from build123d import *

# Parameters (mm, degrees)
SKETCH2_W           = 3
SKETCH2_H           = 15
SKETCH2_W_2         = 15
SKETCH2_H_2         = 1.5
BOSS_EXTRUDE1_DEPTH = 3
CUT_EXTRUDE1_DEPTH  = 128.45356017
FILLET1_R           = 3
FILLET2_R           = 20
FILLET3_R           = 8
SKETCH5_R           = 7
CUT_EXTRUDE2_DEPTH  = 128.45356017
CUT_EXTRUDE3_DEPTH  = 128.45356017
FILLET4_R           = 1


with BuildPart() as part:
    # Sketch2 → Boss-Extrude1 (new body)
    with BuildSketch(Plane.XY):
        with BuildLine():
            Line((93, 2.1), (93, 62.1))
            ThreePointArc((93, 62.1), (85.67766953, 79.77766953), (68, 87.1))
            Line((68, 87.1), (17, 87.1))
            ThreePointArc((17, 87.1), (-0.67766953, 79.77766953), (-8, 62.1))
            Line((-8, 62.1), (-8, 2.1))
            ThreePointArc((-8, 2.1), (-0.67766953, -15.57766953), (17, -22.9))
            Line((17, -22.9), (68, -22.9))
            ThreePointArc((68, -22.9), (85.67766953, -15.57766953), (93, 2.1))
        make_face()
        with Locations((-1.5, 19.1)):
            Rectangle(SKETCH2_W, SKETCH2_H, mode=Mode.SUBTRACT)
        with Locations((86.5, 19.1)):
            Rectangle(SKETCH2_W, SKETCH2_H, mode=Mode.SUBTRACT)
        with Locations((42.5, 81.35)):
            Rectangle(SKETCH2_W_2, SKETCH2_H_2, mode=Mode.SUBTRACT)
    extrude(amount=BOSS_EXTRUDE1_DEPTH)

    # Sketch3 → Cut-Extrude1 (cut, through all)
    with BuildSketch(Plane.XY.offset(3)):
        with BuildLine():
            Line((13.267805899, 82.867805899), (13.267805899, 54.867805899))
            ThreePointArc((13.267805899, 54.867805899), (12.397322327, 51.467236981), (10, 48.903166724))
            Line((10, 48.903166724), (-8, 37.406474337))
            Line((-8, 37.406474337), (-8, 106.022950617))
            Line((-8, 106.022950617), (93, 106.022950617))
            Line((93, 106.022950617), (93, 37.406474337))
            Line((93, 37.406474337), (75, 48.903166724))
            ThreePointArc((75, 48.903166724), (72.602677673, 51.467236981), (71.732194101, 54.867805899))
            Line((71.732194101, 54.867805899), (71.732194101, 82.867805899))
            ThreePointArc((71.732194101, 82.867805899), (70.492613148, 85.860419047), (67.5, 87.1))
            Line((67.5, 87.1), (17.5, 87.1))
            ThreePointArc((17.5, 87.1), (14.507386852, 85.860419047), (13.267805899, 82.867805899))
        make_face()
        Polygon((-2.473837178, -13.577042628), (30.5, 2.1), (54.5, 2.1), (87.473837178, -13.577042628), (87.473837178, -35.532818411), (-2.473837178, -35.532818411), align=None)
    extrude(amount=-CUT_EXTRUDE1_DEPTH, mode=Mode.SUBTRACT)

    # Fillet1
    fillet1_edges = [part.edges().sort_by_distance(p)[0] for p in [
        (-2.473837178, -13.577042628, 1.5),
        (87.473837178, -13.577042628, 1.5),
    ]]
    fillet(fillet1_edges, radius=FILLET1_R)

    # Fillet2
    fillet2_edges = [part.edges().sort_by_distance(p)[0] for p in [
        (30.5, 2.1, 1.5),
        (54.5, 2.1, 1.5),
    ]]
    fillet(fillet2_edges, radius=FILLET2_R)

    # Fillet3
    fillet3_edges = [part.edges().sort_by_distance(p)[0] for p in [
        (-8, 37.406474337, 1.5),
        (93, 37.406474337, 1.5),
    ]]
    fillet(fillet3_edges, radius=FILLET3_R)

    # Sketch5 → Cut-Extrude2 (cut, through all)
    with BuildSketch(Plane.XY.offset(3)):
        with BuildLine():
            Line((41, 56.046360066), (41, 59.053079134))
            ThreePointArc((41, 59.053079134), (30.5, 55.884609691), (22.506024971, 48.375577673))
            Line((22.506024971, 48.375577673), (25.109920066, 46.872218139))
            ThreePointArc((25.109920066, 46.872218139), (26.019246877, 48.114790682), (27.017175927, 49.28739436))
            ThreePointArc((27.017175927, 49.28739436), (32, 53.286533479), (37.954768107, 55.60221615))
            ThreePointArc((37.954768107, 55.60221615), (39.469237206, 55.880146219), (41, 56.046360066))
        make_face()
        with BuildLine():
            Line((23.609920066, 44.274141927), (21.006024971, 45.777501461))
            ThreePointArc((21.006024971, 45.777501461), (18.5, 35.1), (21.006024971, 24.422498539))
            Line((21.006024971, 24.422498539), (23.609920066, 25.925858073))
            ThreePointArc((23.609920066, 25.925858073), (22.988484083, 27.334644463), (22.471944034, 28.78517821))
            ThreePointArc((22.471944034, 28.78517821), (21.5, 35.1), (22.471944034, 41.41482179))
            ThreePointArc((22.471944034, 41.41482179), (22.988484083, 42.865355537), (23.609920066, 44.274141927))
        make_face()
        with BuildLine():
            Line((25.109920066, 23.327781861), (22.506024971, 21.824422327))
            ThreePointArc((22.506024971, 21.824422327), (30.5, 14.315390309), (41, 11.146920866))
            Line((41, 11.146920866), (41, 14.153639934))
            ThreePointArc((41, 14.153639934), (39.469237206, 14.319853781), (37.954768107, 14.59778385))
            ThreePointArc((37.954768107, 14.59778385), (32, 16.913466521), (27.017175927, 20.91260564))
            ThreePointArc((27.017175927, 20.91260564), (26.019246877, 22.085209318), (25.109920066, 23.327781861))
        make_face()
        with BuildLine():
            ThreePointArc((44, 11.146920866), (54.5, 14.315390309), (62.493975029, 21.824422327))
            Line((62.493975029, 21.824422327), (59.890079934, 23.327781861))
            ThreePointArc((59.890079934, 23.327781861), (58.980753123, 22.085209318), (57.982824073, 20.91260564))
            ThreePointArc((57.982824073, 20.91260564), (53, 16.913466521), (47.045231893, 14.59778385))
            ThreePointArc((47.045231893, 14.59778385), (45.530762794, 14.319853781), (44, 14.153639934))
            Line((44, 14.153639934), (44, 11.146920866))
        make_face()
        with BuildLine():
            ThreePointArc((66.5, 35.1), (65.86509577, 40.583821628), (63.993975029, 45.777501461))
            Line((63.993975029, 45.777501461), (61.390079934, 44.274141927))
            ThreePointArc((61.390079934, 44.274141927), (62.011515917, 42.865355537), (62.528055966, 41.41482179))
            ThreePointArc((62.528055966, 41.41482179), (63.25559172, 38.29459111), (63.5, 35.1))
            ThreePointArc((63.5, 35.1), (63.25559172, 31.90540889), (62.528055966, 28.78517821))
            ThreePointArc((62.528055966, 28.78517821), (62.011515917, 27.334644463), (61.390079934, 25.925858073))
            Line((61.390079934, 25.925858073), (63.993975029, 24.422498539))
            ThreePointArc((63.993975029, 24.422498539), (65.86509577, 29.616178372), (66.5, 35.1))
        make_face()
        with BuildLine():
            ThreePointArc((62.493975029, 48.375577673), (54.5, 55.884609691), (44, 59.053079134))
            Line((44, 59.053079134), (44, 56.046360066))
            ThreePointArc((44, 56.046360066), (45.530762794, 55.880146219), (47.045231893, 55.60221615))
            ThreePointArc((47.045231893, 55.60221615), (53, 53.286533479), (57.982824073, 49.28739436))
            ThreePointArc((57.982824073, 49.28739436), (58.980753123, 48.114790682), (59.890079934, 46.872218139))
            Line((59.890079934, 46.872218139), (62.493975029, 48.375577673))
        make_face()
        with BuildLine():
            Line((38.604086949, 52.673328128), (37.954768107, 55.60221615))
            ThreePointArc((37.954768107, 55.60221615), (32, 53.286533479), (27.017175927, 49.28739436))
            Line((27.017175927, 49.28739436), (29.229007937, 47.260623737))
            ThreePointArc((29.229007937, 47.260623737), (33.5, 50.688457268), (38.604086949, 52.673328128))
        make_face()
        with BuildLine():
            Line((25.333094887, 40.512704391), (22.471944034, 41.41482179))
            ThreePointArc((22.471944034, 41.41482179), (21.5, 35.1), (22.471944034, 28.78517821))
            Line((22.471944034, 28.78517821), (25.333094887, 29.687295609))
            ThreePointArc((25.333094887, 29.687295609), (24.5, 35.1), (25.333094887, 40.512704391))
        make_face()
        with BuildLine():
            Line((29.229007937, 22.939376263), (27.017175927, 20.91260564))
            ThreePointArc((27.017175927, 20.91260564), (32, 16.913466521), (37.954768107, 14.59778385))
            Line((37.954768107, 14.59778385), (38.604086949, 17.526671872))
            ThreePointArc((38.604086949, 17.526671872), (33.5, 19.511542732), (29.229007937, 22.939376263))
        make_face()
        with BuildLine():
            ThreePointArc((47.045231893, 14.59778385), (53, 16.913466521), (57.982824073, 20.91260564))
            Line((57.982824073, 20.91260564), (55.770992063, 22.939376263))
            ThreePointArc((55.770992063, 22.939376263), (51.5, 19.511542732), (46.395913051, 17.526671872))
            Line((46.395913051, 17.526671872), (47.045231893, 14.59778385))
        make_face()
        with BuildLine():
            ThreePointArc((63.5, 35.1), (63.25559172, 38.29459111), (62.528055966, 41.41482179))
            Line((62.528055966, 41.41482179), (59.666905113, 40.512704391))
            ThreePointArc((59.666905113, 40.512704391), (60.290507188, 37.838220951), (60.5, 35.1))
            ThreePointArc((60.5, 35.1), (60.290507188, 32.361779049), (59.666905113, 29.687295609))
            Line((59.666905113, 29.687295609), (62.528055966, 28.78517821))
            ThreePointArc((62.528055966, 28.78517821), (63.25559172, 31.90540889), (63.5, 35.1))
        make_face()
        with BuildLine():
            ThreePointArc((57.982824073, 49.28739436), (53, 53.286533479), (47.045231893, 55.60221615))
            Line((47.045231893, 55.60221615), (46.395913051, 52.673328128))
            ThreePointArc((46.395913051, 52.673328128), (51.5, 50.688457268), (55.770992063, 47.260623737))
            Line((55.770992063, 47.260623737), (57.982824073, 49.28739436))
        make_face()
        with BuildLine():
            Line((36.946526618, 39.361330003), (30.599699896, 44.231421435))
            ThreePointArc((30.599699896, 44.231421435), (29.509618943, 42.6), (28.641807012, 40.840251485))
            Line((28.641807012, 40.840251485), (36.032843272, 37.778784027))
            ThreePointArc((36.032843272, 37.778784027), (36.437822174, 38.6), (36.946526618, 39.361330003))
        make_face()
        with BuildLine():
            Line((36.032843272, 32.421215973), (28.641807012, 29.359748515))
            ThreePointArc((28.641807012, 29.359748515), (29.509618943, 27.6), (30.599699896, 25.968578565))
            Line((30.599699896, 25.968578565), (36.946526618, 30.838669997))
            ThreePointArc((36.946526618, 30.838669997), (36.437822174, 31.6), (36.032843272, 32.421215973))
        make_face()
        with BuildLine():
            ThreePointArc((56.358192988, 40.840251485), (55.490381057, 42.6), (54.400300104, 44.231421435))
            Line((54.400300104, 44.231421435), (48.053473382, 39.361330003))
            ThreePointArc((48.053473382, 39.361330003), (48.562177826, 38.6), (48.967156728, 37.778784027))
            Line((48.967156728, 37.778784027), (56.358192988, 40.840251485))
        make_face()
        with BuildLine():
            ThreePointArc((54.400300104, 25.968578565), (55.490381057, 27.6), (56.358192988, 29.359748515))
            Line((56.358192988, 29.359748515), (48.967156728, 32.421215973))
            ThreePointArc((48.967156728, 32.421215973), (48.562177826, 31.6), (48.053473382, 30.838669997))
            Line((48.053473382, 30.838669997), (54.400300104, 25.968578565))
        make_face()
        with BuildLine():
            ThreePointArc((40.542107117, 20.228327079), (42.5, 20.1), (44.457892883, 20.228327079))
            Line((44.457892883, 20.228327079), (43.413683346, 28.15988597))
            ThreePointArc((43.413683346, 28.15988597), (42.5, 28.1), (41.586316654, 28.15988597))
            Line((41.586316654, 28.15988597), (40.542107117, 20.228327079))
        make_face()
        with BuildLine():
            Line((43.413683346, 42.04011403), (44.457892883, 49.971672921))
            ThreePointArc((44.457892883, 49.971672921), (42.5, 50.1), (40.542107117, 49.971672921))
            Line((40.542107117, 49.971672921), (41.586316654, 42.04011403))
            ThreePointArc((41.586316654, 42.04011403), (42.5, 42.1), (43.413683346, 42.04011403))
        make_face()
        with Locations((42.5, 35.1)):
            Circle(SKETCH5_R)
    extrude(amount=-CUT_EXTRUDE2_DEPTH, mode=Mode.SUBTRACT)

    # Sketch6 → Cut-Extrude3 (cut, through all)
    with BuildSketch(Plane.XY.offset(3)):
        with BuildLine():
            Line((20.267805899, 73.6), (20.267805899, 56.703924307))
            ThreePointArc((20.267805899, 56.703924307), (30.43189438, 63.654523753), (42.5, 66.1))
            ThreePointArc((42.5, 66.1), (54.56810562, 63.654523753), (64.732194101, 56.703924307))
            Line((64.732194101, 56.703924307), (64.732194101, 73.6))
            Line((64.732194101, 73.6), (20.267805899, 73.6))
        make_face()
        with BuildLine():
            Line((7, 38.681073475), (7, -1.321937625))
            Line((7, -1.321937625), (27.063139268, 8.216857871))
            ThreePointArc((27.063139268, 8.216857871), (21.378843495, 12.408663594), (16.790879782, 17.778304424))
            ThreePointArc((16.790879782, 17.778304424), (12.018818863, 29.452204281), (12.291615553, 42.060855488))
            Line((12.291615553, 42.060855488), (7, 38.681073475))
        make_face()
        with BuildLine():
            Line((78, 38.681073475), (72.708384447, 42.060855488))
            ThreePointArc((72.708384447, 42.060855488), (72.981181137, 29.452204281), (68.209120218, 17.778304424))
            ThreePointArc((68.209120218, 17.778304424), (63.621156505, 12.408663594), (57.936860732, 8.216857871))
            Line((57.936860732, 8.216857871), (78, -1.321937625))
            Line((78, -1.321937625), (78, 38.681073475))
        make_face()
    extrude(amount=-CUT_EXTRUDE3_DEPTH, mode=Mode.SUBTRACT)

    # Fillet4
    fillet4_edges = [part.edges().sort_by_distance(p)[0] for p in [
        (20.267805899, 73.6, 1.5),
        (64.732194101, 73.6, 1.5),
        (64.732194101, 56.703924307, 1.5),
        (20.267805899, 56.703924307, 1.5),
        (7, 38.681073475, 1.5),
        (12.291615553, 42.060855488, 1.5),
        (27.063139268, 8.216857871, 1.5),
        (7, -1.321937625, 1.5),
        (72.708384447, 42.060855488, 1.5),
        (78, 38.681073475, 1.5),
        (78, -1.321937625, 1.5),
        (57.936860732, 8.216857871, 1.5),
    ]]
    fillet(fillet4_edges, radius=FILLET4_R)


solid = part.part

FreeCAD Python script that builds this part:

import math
import FreeCAD as App
import Part
import Sketcher
from FreeCAD import Vector
Q = App.Units.Quantity


def edges_at(feature, points):
    """Names of the edges that pass closest to the given points."""
    edges = feature.Shape.Edges
    near = lambda p: min(range(len(edges)), key=lambda i: edges[i].distToShape(Part.Vertex(*p))[0])
    return sorted({f"Edge{near(p) + 1}" for p in points})

doc = App.newDocument("Part")
params = doc.addObject("Spreadsheet::Sheet", "Params")
for row, (alias, value) in enumerate([
    ("sketch1_radius", "25 mm"),
    ("sketch1_width", "51 mm"),
    ("sketch1_width2", "3 mm"),
    ("sketch1_width3", "15 mm"),
    ("sketch1_height", "60 mm"),
    ("pad1_length", "3 mm"),
    ("sketch2_width", "50 mm"),
    ("sketch2_width2", "101 mm"),
    ("sketch2_width3", "24 mm"),
    ("sketch2_height", "28 mm"),
    ("fillet_radius", "3 mm"),
    ("fillet2_radius", "20 mm"),
    ("fillet3_radius", "8 mm"),
    ("sketch3_radius", "24 mm"),
    ("sketch3_radius2", "21 mm"),
    ("sketch3_radius3", "18 mm"),
    ("sketch3_radius4", "15 mm"),
    ("sketch3_radius5", "7 mm"),
    ("sketch4_radius", "31 mm"),
    ("fillet4_radius", "1 mm"),
], start=1):
    params.set(f"A{row}", alias)
    params.set(f"B{row}", "=" + value)
    params.setAlias(f"B{row}", alias)

body = doc.addObject("PartDesign::Body", "Body")

# Sketch on XY plane
sketch1 = body.newObject("Sketcher::SketchObject", "Sketch")
sketch1.AttachmentSupport = (doc.getObject("XY_Plane"), [""])
sketch1.MapMode = "FlatFace"
sketch1.addGeometry([
    Part.LineSegment(Vector(93, 2.1, 0), Vector(93, 62.1, 0)),  # 0
    Part.ArcOfCircle(Part.Circle(Vector(68, 62.1, 0), Vector(0, 0, 1), 25), math.radians(0), math.radians(90)),  # 1
    Part.LineSegment(Vector(68, 87.1, 0), Vector(17, 87.1, 0)),  # 2
    Part.ArcOfCircle(Part.Circle(Vector(17, 62.1, 0), Vector(0, 0, 1), 25), math.radians(90), math.radians(180)),  # 3
    Part.LineSegment(Vector(-8, 62.1, 0), Vector(-8, 2.1, 0)),  # 4
    Part.ArcOfCircle(Part.Circle(Vector(17, 2.1, 0), Vector(0, 0, 1), 25), math.radians(180), math.radians(270)),  # 5
    Part.LineSegment(Vector(17, -22.9, 0), Vector(68, -22.9, 0)),  # 6
    Part.ArcOfCircle(Part.Circle(Vector(68, 2.1, 0), Vector(0, 0, 1), 25), math.radians(-90), math.radians(0)),  # 7
    Part.LineSegment(Vector(0, 11.6, 0), Vector(-3, 11.6, 0)),  # 8
    Part.LineSegment(Vector(-3, 11.6, 0), Vector(-3, 26.6, 0)),  # 9
    Part.LineSegment(Vector(-3, 26.6, 0), Vector(0, 26.6, 0)),  # 10
    Part.LineSegment(Vector(0, 26.6, 0), Vector(0, 11.6, 0)),  # 11
    Part.LineSegment(Vector(88, 11.6, 0), Vector(85, 11.6, 0)),  # 12
    Part.LineSegment(Vector(85, 11.6, 0), Vector(85, 26.6, 0)),  # 13
    Part.LineSegment(Vector(85, 26.6, 0), Vector(88, 26.6, 0)),  # 14
    Part.LineSegment(Vector(88, 26.6, 0), Vector(88, 11.6, 0)),  # 15
    Part.LineSegment(Vector(50, 80.6, 0), Vector(35, 80.6, 0)),  # 16
    Part.LineSegment(Vector(35, 80.6, 0), Vector(35, 82.1, 0)),  # 17
    Part.LineSegment(Vector(35, 82.1, 0), Vector(50, 82.1, 0)),  # 18
    Part.LineSegment(Vector(50, 82.1, 0), Vector(50, 80.6, 0)),  # 19
], False)
sketch1.addConstraint([
    Sketcher.Constraint("Tangent", 0, 2, 1, 1),
    Sketcher.Constraint("Tangent", 1, 2, 2, 1),
    Sketcher.Constraint("Tangent", 2, 2, 3, 1),
    Sketcher.Constraint("Tangent", 3, 2, 4, 1),
    Sketcher.Constraint("Tangent", 4, 2, 5, 1),
    Sketcher.Constraint("Tangent", 5, 2, 6, 1),
    Sketcher.Constraint("Tangent", 6, 2, 7, 1),
    Sketcher.Constraint("Tangent", 7, 2, 0, 1),
    Sketcher.Constraint("Coincident", 8, 2, 9, 1),
    Sketcher.Constraint("Coincident", 9, 2, 10, 1),
    Sketcher.Constraint("Coincident", 10, 2, 11, 1),
    Sketcher.Constraint("Coincident", 11, 2, 8, 1),
    Sketcher.Constraint("Coincident", 12, 2, 13, 1),
    Sketcher.Constraint("Coincident", 13, 2, 14, 1),
    Sketcher.Constraint("Coincident", 14, 2, 15, 1),
    Sketcher.Constraint("Coincident", 15, 2, 12, 1),
    Sketcher.Constraint("Coincident", 16, 2, 17, 1),
    Sketcher.Constraint("Coincident", 17, 2, 18, 1),
    Sketcher.Constraint("Coincident", 18, 2, 19, 1),
    Sketcher.Constraint("Coincident", 19, 2, 16, 1),
    Sketcher.Constraint("Vertical", 0),
    Sketcher.Constraint("Horizontal", 2),
    Sketcher.Constraint("Vertical", 4),
    Sketcher.Constraint("Horizontal", 6),
    Sketcher.Constraint("Horizontal", 8),
    Sketcher.Constraint("Vertical", 9),
    Sketcher.Constraint("Horizontal", 10),
    Sketcher.Constraint("Vertical", 11),
    Sketcher.Constraint("Horizontal", 12),
    Sketcher.Constraint("Vertical", 13),
    Sketcher.Constraint("Horizontal", 14),
    Sketcher.Constraint("Vertical", 15),
    Sketcher.Constraint("Horizontal", 16),
    Sketcher.Constraint("Vertical", 17),
    Sketcher.Constraint("Horizontal", 18),
    Sketcher.Constraint("Vertical", 19),
    Sketcher.Constraint("Equal", 1, 3),
    Sketcher.Constraint("Equal", 3, 5),
    Sketcher.Constraint("Equal", 5, 7),
    Sketcher.Constraint("PointOnObject", 10, 2, -2),
    Sketcher.Constraint("Horizontal", 11, 2, 12, 2),
    Sketcher.Constraint("Horizontal", 10, 2, 13, 2),
    Sketcher.Constraint("Equal", 10, 12),
    Sketcher.Constraint("Equal", 18, 9),
    Sketcher.Constraint("Radius", 1, 25.0),
    Sketcher.Constraint("DistanceX", 2, 2, 2, 1, 51.0),
    Sketcher.Constraint("DistanceX", 8, 2, 8, 1, 3.0),
    Sketcher.Constraint("DistanceX", 16, 2, 16, 1, 15.0),
    Sketcher.Constraint("DistanceY", 0, 1, 0, 2, 60.0),
    Sketcher.Constraint("DistanceY", 17, 1, 17, 2, 1.5),
    Sketcher.Constraint("DistanceX", -1, 1, 1, 3, 68.0),
    Sketcher.Constraint("DistanceX", -1, 1, 12, 2, 85.0),
    Sketcher.Constraint("DistanceX", -1, 1, 16, 2, 35.0),
    Sketcher.Constraint("DistanceY", 17, 2, 2, 2, 5.0),
    Sketcher.Constraint("DistanceY", -1, 1, 1, 3, 62.1),
    Sketcher.Constraint("DistanceY", -1, 1, 8, 2, 11.6),
])
sketch1.setExpression("Constraints[44]", "Params.sketch1_radius")
sketch1.setExpression("Constraints[45]", "Params.sketch1_width")
sketch1.setExpression("Constraints[46]", "Params.sketch1_width2")
sketch1.setExpression("Constraints[47]", "Params.sketch1_width3")
sketch1.setExpression("Constraints[48]", "Params.sketch1_height")
pad1 = body.newObject("PartDesign::Pad", "Pad")
pad1.Profile = sketch1
pad1.setExpression("Length", "Params.pad1_length")

# Sketch on XY plane
sketch2 = body.newObject("Sketcher::SketchObject", "Sketch001")
sketch2.AttachmentSupport = (doc.getObject("XY_Plane"), [""])
sketch2.MapMode = "FlatFace"
sketch2.AttachmentOffset = App.Placement(Vector(0, 0, 3), App.Rotation())
sketch2.addGeometry([
    Part.LineSegment(Vector(13.267806, 54.867806, 0), Vector(13.267806, 82.867806, 0)),  # 0
    Part.ArcOfCircle(Part.Circle(Vector(17.5, 82.867806, 0), Vector(0, 0, 1), 4.232194), math.radians(90), math.radians(180)),  # 1
    Part.LineSegment(Vector(17.5, 87.1, 0), Vector(67.5, 87.1, 0)),  # 2
    Part.ArcOfCircle(Part.Circle(Vector(67.5, 82.867806, 0), Vector(0, 0, 1), 4.232194), math.radians(0), math.radians(90)),  # 3
    Part.LineSegment(Vector(71.732194, 82.867806, 0), Vector(71.732194, 54.867806, 0)),  # 4
    Part.ArcOfCircle(Part.Circle(Vector(78.809646, 54.867806, 0), Vector(0, 0, 1), 7.077452), math.radians(-180), math.radians(-122.56658)),  # 5
    Part.LineSegment(Vector(75, 48.903167, 0), Vector(93, 37.406474, 0)),  # 6
    Part.LineSegment(Vector(93, 37.406474, 0), Vector(93, 106.022951, 0)),  # 7
    Part.LineSegment(Vector(93, 106.022951, 0), Vector(-8, 106.022951, 0)),  # 8
    Part.LineSegment(Vector(-8, 106.022951, 0), Vector(-8, 37.406474, 0)),  # 9
    Part.LineSegment(Vector(-8, 37.406474, 0), Vector(10, 48.903167, 0)),  # 10
    Part.ArcOfCircle(Part.Circle(Vector(6.190354, 54.867806, 0), Vector(0, 0, 1), 7.077452), math.radians(-57.43342), math.radians(0)),  # 11
    Part.LineSegment(Vector(30.5, 2.1, 0), Vector(-2.473837, -13.577043, 0)),  # 12
    Part.LineSegment(Vector(-2.473837, -13.577043, 0), Vector(-2.473837, -35.532818, 0)),  # 13
    Part.LineSegment(Vector(-2.473837, -35.532818, 0), Vector(87.473837, -35.532818, 0)),  # 14
    Part.LineSegment(Vector(87.473837, -35.532818, 0), Vector(87.473837, -13.577043, 0)),  # 15
    Part.LineSegment(Vector(87.473837, -13.577043, 0), Vector(54.5, 2.1, 0)),  # 16
    Part.LineSegment(Vector(54.5, 2.1, 0), Vector(30.5, 2.1, 0)),  # 17
], False)
sketch2.addConstraint([
    Sketcher.Constraint("Tangent", 0, 2, 1, 2),
    Sketcher.Constraint("Tangent", 1, 1, 2, 1),
    Sketcher.Constraint("Tangent", 2, 2, 3, 2),
    Sketcher.Constraint("Tangent", 3, 1, 4, 1),
    Sketcher.Constraint("Tangent", 4, 2, 5, 1),
    Sketcher.Constraint("Tangent", 5, 2, 6, 1),
    Sketcher.Constraint("Coincident", 6, 2, 7, 1),
    Sketcher.Constraint("Coincident", 7, 2, 8, 1),
    Sketcher.Constraint("Coincident", 8, 2, 9, 1),
    Sketcher.Constraint("Coincident", 9, 2, 10, 1),
    Sketcher.Constraint("Tangent", 10, 2, 11, 1),
    Sketcher.Constraint("Tangent", 11, 2, 0, 1),
    Sketcher.Constraint("Coincident", 12, 2, 13, 1),
    Sketcher.Constraint("Coincident", 13, 2, 14, 1),
    Sketcher.Constraint("Coincident", 14, 2, 15, 1),
    Sketcher.Constraint("Coincident", 15, 2, 16, 1),
    Sketcher.Constraint("Coincident", 16, 2, 17, 1),
    Sketcher.Constraint("Coincident", 17, 2, 12, 1),
    Sketcher.Constraint("Vertical", 0),
    Sketcher.Constraint("Horizontal", 2),
    Sketcher.Constraint("Vertical", 4),
    Sketcher.Constraint("Vertical", 7),
    Sketcher.Constraint("Horizontal", 8),
    Sketcher.Constraint("Vertical", 9),
    Sketcher.Constraint("Vertical", 13),
    Sketcher.Constraint("Horizontal", 14),
    Sketcher.Constraint("Vertical", 15),
    Sketcher.Constraint("Horizontal", 17),
    Sketcher.Constraint("Equal", 1, 3),
    Sketcher.Constraint("Equal", 5, 11),
    Sketcher.Constraint("Horizontal", 5, 3, 11, 3),
    Sketcher.Constraint("Horizontal", 6, 2, 9, 2),
    Sketcher.Constraint("Horizontal", 5, 2, 10, 2),
    Sketcher.Constraint("Horizontal", 12, 2, 15, 2),
    Sketcher.Constraint("Equal", 12, 16),
    Sketcher.Constraint("DistanceX", 2, 1, 2, 2, 50.0),
    Sketcher.Constraint("DistanceX", 8, 2, 8, 1, 101.0),
    Sketcher.Constraint("DistanceX", 17, 2, 17, 1, 24.0),
    Sketcher.Constraint("DistanceY", 0, 1, 0, 2, 28.0),
    Sketcher.Constraint("DistanceX", -1, 1, 5, 2, 75.0),
    Sketcher.Constraint("DistanceX", -1, 1, 6, 2, 93.0),
    Sketcher.Constraint("DistanceY", -1, 1, 1, 1, 87.1),
    Sketcher.Constraint("DistanceX", -1, 1, 16, 2, 54.5),
    Sketcher.Constraint("DistanceY", -1, 1, 16, 2, 2.1),
    Sketcher.Constraint("Radius", 5, 7.077452),
    Sketcher.Constraint("Radius", 1, 4.232194),
    Sketcher.Constraint("Distance", 12, 36.51087),
    Sketcher.Constraint("DistanceX", 14, 1, 14, 2, 89.947674),
    Sketcher.Constraint("DistanceY", 7, 1, 7, 2, 68.616476),
    Sketcher.Constraint("DistanceY", 13, 2, 13, 1, 21.955776),
])
sketch2.setExpression("Constraints[35]", "Params.sketch2_width")
sketch2.setExpression("Constraints[36]", "Params.sketch2_width2")
sketch2.setExpression("Constraints[37]", "Params.sketch2_width3")
sketch2.setExpression("Constraints[38]", "Params.sketch2_height")
pocket1 = body.newObject("PartDesign::Pocket", "Pocket")
pocket1.Profile = sketch2
pocket1.Type = "ThroughAll"
doc.recompute()

fillet = body.newObject("PartDesign::Fillet", "Fillet")
fillet.Base = (pocket1, edges_at(pocket1, [(-2.474, -13.577, 1.5), (87.474, -13.577, 1.5)]))
fillet.setExpression("Radius", "Params.fillet_radius")
doc.recompute()

fillet2 = body.newObject("PartDesign::Fillet", "Fillet001")
fillet2.Base = (fillet, edges_at(fillet, [(30.5, 2.1, 1.5), (54.5, 2.1, 1.5)]))
fillet2.setExpression("Radius", "Params.fillet2_radius")
doc.recompute()

fillet3 = body.newObject("PartDesign::Fillet", "Fillet002")
fillet3.Base = (fillet2, edges_at(fillet2, [(-8, 37.406, 1.5), (93, 37.406, 1.5)]))
fillet3.setExpression("Radius", "Params.fillet3_radius")

# Sketch on XY plane
sketch3 = body.newObject("Sketcher::SketchObject", "Sketch002")
sketch3.AttachmentSupport = (doc.getObject("XY_Plane"), [""])
sketch3.MapMode = "FlatFace"
sketch3.AttachmentOffset = App.Placement(Vector(0, 0, 3), App.Rotation())
sketch3.addGeometry([
    Part.LineSegment(Vector(41, 56.04636, 0), Vector(41, 59.053079, 0)),  # 0
    Part.ArcOfCircle(Part.Circle(Vector(42.5, 35.1, 0), Vector(0, 0, 1), 24), math.radians(93.583322), math.radians(146.416678)),  # 1
    Part.LineSegment(Vector(22.506025, 48.375578, 0), Vector(25.10992, 46.872218, 0)),  # 2
    Part.ArcOfCircle(Part.Circle(Vector(42.5, 35.1, 0), Vector(0, 0, 1), 21), math.radians(137.5), math.radians(145.903956)),  # 3
    Part.LineSegment(Vector(27.017176, 49.287394, 0), Vector(29.229008, 47.260624, 0)),  # 4
    Part.ArcOfCircle(Part.Circle(Vector(42.5, 35.1, 0), Vector(0, 0, 1), 18), math.radians(102.5), math.radians(137.5)),  # 5
    Part.LineSegment(Vector(38.604087, 52.673328, 0), Vector(37.954768, 55.602216, 0)),  # 6
    Part.ArcOfCircle(Part.Circle(Vector(42.5, 35.1, 0), Vector(0, 0, 1), 21), math.radians(94.096044), math.radians(102.5)),  # 7
    Part.LineSegment(Vector(23.60992, 44.274142, 0), Vector(21.006025, 45.777501, 0)),  # 8
    Part.ArcOfCircle(Part.Circle(Vector(42.5, 35.1, 0), Vector(0, 0, 1), 24), math.radians(153.583322), math.radians(206.416678)),  # 9
    Part.LineSegment(Vector(21.006025, 24.422499, 0), Vector(23.60992, 25.925858, 0)),  # 10
    Part.ArcOfCircle(Part.Circle(Vector(42.5, 35.1, 0), Vector(0, 0, 1), 21), math.radians(-162.5), math.radians(-154.096044)),  # 11
    Part.LineSegment(Vector(22.471944, 28.785178, 0), Vector(25.333095, 29.687296, 0)),  # 12
    Part.ArcOfCircle(Part.Circle(Vector(42.5, 35.1, 0), Vector(0, 0, 1), 18), math.radians(162.5), math.radians(197.5)),  # 13
    Part.LineSegment(Vector(25.333095, 40.512704, 0), Vector(22.471944, 41.414822, 0)),  # 14
    Part.ArcOfCircle(Part.Circle(Vector(42.5, 35.1, 0), Vector(0, 0, 1), 21), math.radians(154.096044), math.radians(162.5)),  # 15
    Part.LineSegment(Vector(25.10992, 23.327782, 0), Vector(22.506025, 21.824422, 0)),  # 16
    Part.ArcOfCircle(Part.Circle(Vector(42.5, 35.1, 0), Vector(0, 0, 1), 24), math.radians(-146.416678), math.radians(-93.583322)),  # 17
    Part.LineSegment(Vector(41, 11.146921, 0), Vector(41, 14.15364, 0)),  # 18
    Part.ArcOfCircle(Part.Circle(Vector(42.5, 35.1, 0), Vector(0, 0, 1), 21), math.radians(-102.5), math.radians(-94.096044)),  # 19
    Part.LineSegment(Vector(37.954768, 14.597784, 0), Vector(38.604087, 17.526672, 0)),  # 20
    Part.ArcOfCircle(Part.Circle(Vector(42.5, 35.1, 0), Vector(0, 0, 1), 18), math.radians(-137.5), math.radians(-102.5)),  # 21
    Part.LineSegment(Vector(29.229008, 22.939376, 0), Vector(27.017176, 20.912606, 0)),  # 22
    Part.ArcOfCircle(Part.Circle(Vector(42.5, 35.1, 0), Vector(0, 0, 1), 21), math.radians(-145.903956), math.radians(-137.5)),  # 23
    Part.ArcOfCircle(Part.Circle(Vector(42.5, 35.1, 0), Vector(0, 0, 1), 24), math.radians(-86.416678), math.radians(-33.583322)),  # 24
    Part.LineSegment(Vector(62.493975, 21.824422, 0), Vector(59.89008, 23.327782, 0)),  # 25
    Part.ArcOfCircle(Part.Circle(Vector(42.5, 35.1, 0), Vector(0, 0, 1), 21), math.radians(-42.5), math.radians(-34.096044)),  # 26
    Part.LineSegment(Vector(57.982824, 20.912606, 0), Vector(55.770992, 22.939376, 0)),  # 27
    Part.ArcOfCircle(Part.Circle(Vector(42.5, 35.1, 0), Vector(0, 0, 1), 18), math.radians(-77.5), math.radians(-42.5)),  # 28
    Part.LineSegment(Vector(46.395913, 17.526672, 0), Vector(47.045232, 14.597784, 0)),  # 29
    Part.ArcOfCircle(Part.Circle(Vector(42.5, 35.1, 0), Vector(0, 0, 1), 21), math.radians(-85.903956), math.radians(-77.5)),  # 30
    Part.LineSegment(Vector(44, 14.15364, 0), Vector(44, 11.146921, 0)),  # 31
    Part.ArcOfCircle(Part.Circle(Vector(42.5, 35.1, 0), Vector(0, 0, 1), 24), math.radians(0), math.radians(26.416678)),  # 32
    Part.LineSegment(Vector(63.993975, 45.777501, 0), Vector(61.39008, 44.274142, 0)),  # 33
    Part.ArcOfCircle(Part.Circle(Vector(42.5, 35.1, 0), Vector(0, 0, 1), 21), math.radians(17.5), math.radians(25.903956)),  # 34
    Part.LineSegment(Vector(62.528056, 41.414822, 0), Vector(59.666905, 40.512704, 0)),  # 35
    Part.ArcOfCircle(Part.Circle(Vector(42.5, 35.1, 0), Vector(0, 0, 1), 18), math.radians(0), math.radians(17.5)),  # 36
    Part.ArcOfCircle(Part.Circle(Vector(42.5, 35.1, 0), Vector(0, 0, 1), 18), math.radians(-17.5), math.radians(0)),  # 37
    Part.LineSegment(Vector(59.666905, 29.687296, 0), Vector(62.528056, 28.785178, 0)),  # 38
    Part.ArcOfCircle(Part.Circle(Vector(42.5, 35.1, 0), Vector(0, 0, 1), 21), math.radians(-25.903956), math.radians(-17.5)),  # 39
    Part.LineSegment(Vector(61.39008, 25.925858, 0), Vector(63.993975, 24.422499, 0)),  # 40
    Part.ArcOfCircle(Part.Circle(Vector(42.5, 35.1, 0), Vector(0, 0, 1), 24), math.radians(-26.416678), math.radians(0)),  # 41
    Part.ArcOfCircle(Part.Circle(Vector(42.5, 35.1, 0), Vector(0, 0, 1), 24), math.radians(33.583322), math.radians(86.416678)),  # 42
    Part.LineSegment(Vector(44, 59.053079, 0), Vector(44, 56.04636, 0)),  # 43
    Part.ArcOfCircle(Part.Circle(Vector(42.5, 35.1, 0), Vector(0, 0, 1), 21), math.radians(77.5), math.radians(85.903956)),  # 44
    Part.LineSegment(Vector(47.045232, 55.602216, 0), Vector(46.395913, 52.673328, 0)),  # 45
    Part.ArcOfCircle(Part.Circle(Vector(42.5, 35.1, 0), Vector(0, 0, 1), 18), math.radians(42.5), math.radians(77.5)),  # 46
    Part.LineSegment(Vector(55.770992, 47.260624, 0), Vector(57.982824, 49.287394, 0)),  # 47
    Part.ArcOfCircle(Part.Circle(Vector(42.5, 35.1, 0), Vector(0, 0, 1), 21), math.radians(34.096044), math.radians(42.5)),  # 48
    Part.LineSegment(Vector(59.89008, 46.872218, 0), Vector(62.493975, 48.375578, 0)),  # 49
    Part.LineSegment(Vector(36.946527, 39.36133, 0), Vector(30.5997, 44.231421, 0)),  # 50
    Part.ArcOfCircle(Part.Circle(Vector(42.5, 35.1, 0), Vector(0, 0, 1), 15), math.radians(142.5), math.radians(157.5)),  # 51
    Part.LineSegment(Vector(28.641807, 40.840251, 0), Vector(36.032843, 37.778784, 0)),  # 52
    Part.ArcOfCircle(Part.Circle(Vector(42.5, 35.1, 0), Vector(0, 0, 1), 7), math.radians(157.5), math.radians(202.5)),  # 53
    Part.LineSegment(Vector(36.032843, 32.421216, 0), Vector(28.641807, 29.359749, 0)),  # 54
    Part.ArcOfCircle(Part.Circle(Vector(42.5, 35.1, 0), Vector(0, 0, 1), 15), math.radians(-157.5), math.radians(-142.5)),  # 55
    Part.LineSegment(Vector(30.5997, 25.968579, 0), Vector(36.946527, 30.83867, 0)),  # 56
    Part.ArcOfCircle(Part.Circle(Vector(42.5, 35.1, 0), Vector(0, 0, 1), 7), math.radians(-142.5), math.radians(-97.5)),  # 57
    Part.LineSegment(Vector(41.586317, 28.159886, 0), Vector(40.542107, 20.228327, 0)),  # 58
    Part.ArcOfCircle(Part.Circle(Vector(42.5, 35.1, 0), Vector(0, 0, 1), 15), math.radians(-97.5), math.radians(-82.5)),  # 59
    Part.LineSegment(Vector(44.457893, 20.228327, 0), Vector(43.413683, 28.159886, 0)),  # 60
    Part.ArcOfCircle(Part.Circle(Vector(42.5, 35.1, 0), Vector(0, 0, 1), 7), math.radians(-82.5), math.radians(-37.5)),  # 61
    Part.LineSegment(Vector(48.053473, 30.83867, 0), Vector(54.4003, 25.968579, 0)),  # 62
    Part.ArcOfCircle(Part.Circle(Vector(42.5, 35.1, 0), Vector(0, 0, 1), 15), math.radians(-37.5), math.radians(-22.5)),  # 63
    Part.LineSegment(Vector(56.358193, 29.359749, 0), Vector(48.967157, 32.421216, 0)),  # 64
    Part.ArcOfCircle(Part.Circle(Vector(42.5, 35.1, 0), Vector(0, 0, 1), 7), math.radians(-22.5), math.radians(22.5)),  # 65
    Part.LineSegment(Vector(48.967157, 37.778784, 0), Vector(56.358193, 40.840251, 0)),  # 66
    Part.ArcOfCircle(Part.Circle(Vector(42.5, 35.1, 0), Vector(0, 0, 1), 15), math.radians(22.5), math.radians(37.5)),  # 67
    Part.LineSegment(Vector(54.4003, 44.231421, 0), Vector(48.053473, 39.36133, 0)),  # 68
    Part.ArcOfCircle(Part.Circle(Vector(42.5, 35.1, 0), Vector(0, 0, 1), 7), math.radians(37.5), math.radians(82.5)),  # 69
    Part.LineSegment(Vector(43.413683, 42.040114, 0), Vector(44.457893, 49.971673, 0)),  # 70
    Part.ArcOfCircle(Part.Circle(Vector(42.5, 35.1, 0), Vector(0, 0, 1), 15), math.radians(82.5), math.radians(97.5)),  # 71
    Part.LineSegment(Vector(40.542107, 49.971673, 0), Vector(41.586317, 42.040114, 0)),  # 72
    Part.ArcOfCircle(Part.Circle(Vector(42.5, 35.1, 0), Vector(0, 0, 1), 7), math.radians(97.5), math.radians(142.5)),  # 73
], False)
sketch3.addConstraint([
    Sketcher.Constraint("Coincident", 0, 2, 1, 1),
    Sketcher.Constraint("Coincident", 1, 2, 2, 1),
    Sketcher.Constraint("Coincident", 2, 2, 3, 2),
    Sketcher.Constraint("Coincident", 3, 1, 4, 1),
    Sketcher.Constraint("Coincident", 4, 2, 5, 2),
    Sketcher.Constraint("Coincident", 5, 1, 6, 1),
    Sketcher.Constraint("Coincident", 6, 2, 7, 2),
    Sketcher.Constraint("Coincident", 7, 1, 0, 1),
    Sketcher.Constraint("Coincident", 8, 2, 9, 1),
    Sketcher.Constraint("Coincident", 9, 2, 10, 1),
    Sketcher.Constraint("Coincident", 10, 2, 11, 2),
    Sketcher.Constraint("Coincident", 11, 1, 12, 1),
    Sketcher.Constraint("Coincident", 12, 2, 13, 2),
    Sketcher.Constraint("Coincident", 13, 1, 14, 1),
    Sketcher.Constraint("Coincident", 14, 2, 15, 2),
    Sketcher.Constraint("Coincident", 15, 1, 8, 1),
    Sketcher.Constraint("Coincident", 16, 2, 17, 1),
    Sketcher.Constraint("Coincident", 17, 2, 18, 1),
    Sketcher.Constraint("Coincident", 18, 2, 19, 2),
    Sketcher.Constraint("Coincident", 19, 1, 20, 1),
    Sketcher.Constraint("Coincident", 20, 2, 21, 2),
    Sketcher.Constraint("Coincident", 21, 1, 22, 1),
    Sketcher.Constraint("Coincident", 22, 2, 23, 2),
    Sketcher.Constraint("Coincident", 23, 1, 16, 1),
    Sketcher.Constraint("Coincident", 24, 2, 25, 1),
    Sketcher.Constraint("Coincident", 25, 2, 26, 2),
    Sketcher.Constraint("Coincident", 26, 1, 27, 1),
    Sketcher.Constraint("Coincident", 27, 2, 28, 2),
    Sketcher.Constraint("Coincident", 28, 1, 29, 1),
    Sketcher.Constraint("Coincident", 29, 2, 30, 2),
    Sketcher.Constraint("Coincident", 30, 1, 31, 1),
    Sketcher.Constraint("Coincident", 31, 2, 24, 1),
    Sketcher.Constraint("Coincident", 32, 2, 33, 1),
    Sketcher.Constraint("Coincident", 33, 2, 34, 2),
    Sketcher.Constraint("Coincident", 34, 1, 35, 1),
    Sketcher.Constraint("Coincident", 35, 2, 36, 2),
    Sketcher.Constraint("Tangent", 36, 1, 37, 2),
    Sketcher.Constraint("Coincident", 37, 1, 38, 1),
    Sketcher.Constraint("Coincident", 38, 2, 39, 2),
    Sketcher.Constraint("Coincident", 39, 1, 40, 1),
    Sketcher.Constraint("Coincident", 40, 2, 41, 1),
    Sketcher.Constraint("Tangent", 41, 2, 32, 1),
    Sketcher.Constraint("Coincident", 42, 2, 43, 1),
    Sketcher.Constraint("Coincident", 43, 2, 44, 2),
    Sketcher.Constraint("Coincident", 44, 1, 45, 1),
    Sketcher.Constraint("Coincident", 45, 2, 46, 2),
    Sketcher.Constraint("Coincident", 46, 1, 47, 1),
    Sketcher.Constraint("Coincident", 47, 2, 48, 2),
    Sketcher.Constraint("Coincident", 48, 1, 49, 1),
    Sketcher.Constraint("Coincident", 49, 2, 42, 1),
    Sketcher.Constraint("Coincident", 50, 2, 51, 1),
    Sketcher.Constraint("Coincident", 51, 2, 52, 1),
    Sketcher.Constraint("Coincident", 52, 2, 53, 1),
    Sketcher.Constraint("Coincident", 53, 2, 54, 1),
    Sketcher.Constraint("Coincident", 54, 2, 55, 1),
    Sketcher.Constraint("Coincident", 55, 2, 56, 1),
    Sketcher.Constraint("Coincident", 56, 2, 57, 1),
    Sketcher.Constraint("Coincident", 57, 2, 58, 1),
    Sketcher.Constraint("Coincident", 58, 2, 59, 1),
    Sketcher.Constraint("Coincident", 59, 2, 60, 1),
    Sketcher.Constraint("Coincident", 60, 2, 61, 1),
    Sketcher.Constraint("Coincident", 61, 2, 62, 1),
    Sketcher.Constraint("Coincident", 62, 2, 63, 1),
    Sketcher.Constraint("Coincident", 63, 2, 64, 1),
    Sketcher.Constraint("Coincident", 64, 2, 65, 1),
    Sketcher.Constraint("Coincident", 65, 2, 66, 1),
    Sketcher.Constraint("Coincident", 66, 2, 67, 1),
    Sketcher.Constraint("Coincident", 67, 2, 68, 1),
    Sketcher.Constraint("Coincident", 68, 2, 69, 1),
    Sketcher.Constraint("Coincident", 69, 2, 70, 1),
    Sketcher.Constraint("Coincident", 70, 2, 71, 1),
    Sketcher.Constraint("Coincident", 71, 2, 72, 1),
    Sketcher.Constraint("Coincident", 72, 2, 73, 1),
    Sketcher.Constraint("Coincident", 73, 2, 50, 1),
    Sketcher.Constraint("Vertical", 0),
    Sketcher.Constraint("Vertical", 18),
    Sketcher.Constraint("Vertical", 31),
    Sketcher.Constraint("Vertical", 43),
    Sketcher.Constraint("Coincident", 3, 3, 1, 3),
    Sketcher.Constraint("Coincident", 5, 3, 1, 3),
    Sketcher.Constraint("Coincident", 7, 3, 1, 3),
    Sketcher.Constraint("Coincident", 9, 3, 1, 3),
    Sketcher.Constraint("Coincident", 11, 3, 1, 3),
    Sketcher.Constraint("Coincident", 13, 3, 1, 3),
    Sketcher.Constraint("Coincident", 15, 3, 1, 3),
    Sketcher.Constraint("Coincident", 17, 3, 1, 3),
    Sketcher.Constraint("Coincident", 19, 3, 1, 3),
    Sketcher.Constraint("Coincident", 21, 3, 1, 3),
    Sketcher.Constraint("Coincident", 23, 3, 1, 3),
    Sketcher.Constraint("Coincident", 24, 3, 1, 3),
    Sketcher.Constraint("Coincident", 26, 3, 1, 3),
    Sketcher.Constraint("Coincident", 28, 3, 1, 3),
    Sketcher.Constraint("Coincident", 30, 3, 1, 3),
    Sketcher.Constraint("Coincident", 32, 3, 1, 3),
    Sketcher.Constraint("Coincident", 34, 3, 1, 3),
    Sketcher.Constraint("Coincident", 36, 3, 1, 3),
    Sketcher.Constraint("Coincident", 39, 3, 1, 3),
    Sketcher.Constraint("Coincident", 42, 3, 1, 3),
    Sketcher.Constraint("Coincident", 44, 3, 1, 3),
    Sketcher.Constraint("Coincident", 46, 3, 1, 3),
    Sketcher.Constraint("Coincident", 48, 3, 1, 3),
    Sketcher.Constraint("Coincident", 51, 3, 1, 3),
    Sketcher.Constraint("Coincident", 53, 3, 1, 3),
    Sketcher.Constraint("Coincident", 55, 3, 1, 3),
    Sketcher.Constraint("Coincident", 57, 3, 1, 3),
    Sketcher.Constraint("Coincident", 59, 3, 1, 3),
    Sketcher.Constraint("Coincident", 61, 3, 1, 3),
    Sketcher.Constraint("Coincident", 63, 3, 1, 3),
    Sketcher.Constraint("Coincident", 65, 3, 1, 3),
    Sketcher.Constraint("Coincident", 67, 3, 1, 3),
    Sketcher.Constraint("Coincident", 69, 3, 1, 3),
    Sketcher.Constraint("Coincident", 71, 3, 1, 3),
    Sketcher.Constraint("Coincident", 73, 3, 1, 3),
    Sketcher.Constraint("Equal", 3, 7),
    Sketcher.Constraint("Equal", 1, 9),
    Sketcher.Constraint("Equal", 7, 11),
    Sketcher.Constraint("Equal", 5, 13),
    Sketcher.Constraint("Equal", 11, 15),
    Sketcher.Constraint("Equal", 9, 17),
    Sketcher.Constraint("Equal", 15, 19),
    Sketcher.Constraint("Equal", 13, 21),
    Sketcher.Constraint("Equal", 19, 23),
    Sketcher.Constraint("Equal", 17, 24),
    Sketcher.Constraint("Equal", 23, 26),
    Sketcher.Constraint("Equal", 21, 28),
    Sketcher.Constraint("Equal", 26, 30),
    Sketcher.Constraint("Equal", 24, 32),
    Sketcher.Constraint("Equal", 30, 34),
    Sketcher.Constraint("Equal", 28, 36),
    Sketcher.Constraint("Equal", 36, 37),
    Sketcher.Constraint("Equal", 34, 39),
    Sketcher.Constraint("Equal", 32, 41),
    Sketcher.Constraint("Equal", 41, 42),
    Sketcher.Constraint("Equal", 39, 44),
    Sketcher.Constraint("Equal", 37, 46),
    Sketcher.Constraint("Equal", 44, 48),
    Sketcher.Constraint("Equal", 51, 55),
    Sketcher.Constraint("Equal", 53, 57),
    Sketcher.Constraint("Equal", 55, 59),
    Sketcher.Constraint("Equal", 57, 61),
    Sketcher.Constraint("Equal", 59, 63),
    Sketcher.Constraint("Equal", 61, 65),
    Sketcher.Constraint("Equal", 63, 67),
    Sketcher.Constraint("Equal", 65, 69),
    Sketcher.Constraint("Equal", 67, 71),
    Sketcher.Constraint("Equal", 69, 73),
    Sketcher.Constraint("Parallel", 2, 8),
    Sketcher.Constraint("Parallel", 10, 16),
    Sketcher.Constraint("Parallel", 8, 25),
    Sketcher.Constraint("Parallel", 4, 27),
    Sketcher.Constraint("Parallel", 6, 29),
    Sketcher.Constraint("Parallel", 16, 33),
    Sketcher.Constraint("Parallel", 12, 35),
    Sketcher.Constraint("Parallel", 14, 38),
    Sketcher.Constraint("Parallel", 25, 40),
    Sketcher.Constraint("Parallel", 20, 45),
    Sketcher.Constraint("Parallel", 22, 47),
    Sketcher.Constraint("Parallel", 33, 49),
    Sketcher.Constraint("Parallel", 50, 62),
    Sketcher.Constraint("Parallel", 52, 64),
    Sketcher.Constraint("Parallel", 54, 66),
    Sketcher.Constraint("Parallel", 56, 68),
    Sketcher.Constraint("Parallel", 58, 70),
    Sketcher.Constraint("Parallel", 60, 72),
    Sketcher.Constraint("Horizontal", 16, 2, 24, 2),
    Sketcher.Constraint("Horizontal", 23, 1, 25, 2),
    Sketcher.Constraint("Horizontal", 22, 2, 26, 1),
    Sketcher.Constraint("Horizontal", 21, 1, 27, 2),
    Sketcher.Constraint("Horizontal", 20, 2, 28, 1),
    Sketcher.Constraint("Horizontal", 19, 1, 29, 2),
    Sketcher.Constraint("Horizontal", 18, 2, 30, 1),
    Sketcher.Constraint("Horizontal", 8, 2, 32, 2),
    Sketcher.Constraint("Horizontal", 14, 2, 34, 1),
    Sketcher.Constraint("Horizontal", 13, 1, 35, 2),
    Sketcher.Constraint("Horizontal", 73, 3, 36, 1),
    Sketcher.Constraint("Horizontal", 12, 2, 37, 1),
    Sketcher.Constraint("Horizontal", 10, 2, 39, 1),
    Sketcher.Constraint("Horizontal", 36, 1, 41, 2),
    Sketcher.Constraint("Horizontal", 0, 2, 42, 2),
    Sketcher.Constraint("Horizontal", 6, 2, 44, 1),
    Sketcher.Constraint("Horizontal", 4, 2, 46, 1),
    Sketcher.Constraint("Horizontal", 2, 2, 48, 1),
    Sketcher.Constraint("Horizontal", 58, 2, 59, 2),
    Sketcher.Constraint("Horizontal", 57, 2, 60, 2),
    Sketcher.Constraint("Horizontal", 56, 2, 61, 2),
    Sketcher.Constraint("Horizontal", 55, 2, 62, 2),
    Sketcher.Constraint("Horizontal", 54, 2, 63, 2),
    Sketcher.Constraint("Horizontal", 53, 2, 64, 2),
    Sketcher.Constraint("Horizontal", 52, 2, 65, 2),
    Sketcher.Constraint("Horizontal", 50, 2, 67, 2),
    Sketcher.Constraint("Horizontal", 70, 2, 71, 2),
    Sketcher.Constraint("Vertical", 8, 2, 9, 2),
    Sketcher.Constraint("Vertical", 12, 2, 13, 1),
    Sketcher.Constraint("Vertical", 1, 2, 16, 2),
    Sketcher.Constraint("Vertical", 7, 1, 17, 2),
    Sketcher.Constraint("Vertical", 6, 2, 19, 1),
    Sketcher.Constraint("Vertical", 4, 2, 21, 1),
    Sketcher.Constraint("Vertical", 52, 2, 53, 2),
    Sketcher.Constraint("Vertical", 50, 2, 55, 2),
    Sketcher.Constraint("Vertical", 60, 2, 69, 2),
    Sketcher.Constraint("Equal", 2, 8),
    Sketcher.Constraint("Radius", 1, 24.0),
    Sketcher.Constraint("Radius", 3, 21.0),
    Sketcher.Constraint("Radius", 5, 18.0),
    Sketcher.Constraint("Radius", 51, 15.0),
    Sketcher.Constraint("Radius", 53, 7.0),
    Sketcher.Constraint("Angle", 2, Q("-30 deg")),
    Sketcher.Constraint("DistanceX", -1, 1, 0, 2, 41.0),
    Sketcher.Constraint("DistanceX", -1, 1, 30, 1, 44.0),
    Sketcher.Constraint("Angle", 4, Q("-42.5 deg")),
    Sketcher.Constraint("Angle", 6, Q("102.5 deg")),
    Sketcher.Constraint("Angle", 12, Q("17.5 deg")),
    Sketcher.Constraint("Angle", 50, Q("142.5 deg")),
    Sketcher.Constraint("Angle", 52, Q("-22.5 deg")),
    Sketcher.Constraint("Angle", 58, Q("-97.5 deg")),
    Sketcher.Constraint("DistanceY", -1, 1, 1, 3, 35.1),
    Sketcher.Constraint("DistanceY", -1, 1, 8, 2, 45.777501),
    Sketcher.Constraint("DistanceX", -1, 1, 50, 2, 30.5997),
    Sketcher.Constraint("DistanceY", -1, 1, 5, 1, 52.673328),
    Sketcher.Constraint("DistanceY", -1, 1, 11, 1, 28.785178),
    Sketcher.Constraint("DistanceY", -1, 1, 51, 2, 40.840251),
    Sketcher.Constraint("DistanceX", -1, 1, 3, 1, 27.017176),
    Sketcher.Constraint("DistanceX", -1, 1, 57, 2, 41.586317),
])
sketch3.setExpression("Constraints[201]", "Params.sketch3_radius")
sketch3.setExpression("Constraints[202]", "Params.sketch3_radius2")
sketch3.setExpression("Constraints[203]", "Params.sketch3_radius3")
sketch3.setExpression("Constraints[204]", "Params.sketch3_radius4")
sketch3.setExpression("Constraints[205]", "Params.sketch3_radius5")
pocket2 = body.newObject("PartDesign::Pocket", "Pocket001")
pocket2.Profile = sketch3
pocket2.Type = "ThroughAll"

# Sketch on XY plane
sketch4 = body.newObject("Sketcher::SketchObject", "Sketch003")
sketch4.AttachmentSupport = (doc.getObject("XY_Plane"), [""])
sketch4.MapMode = "FlatFace"
sketch4.AttachmentOffset = App.Placement(Vector(0, 0, 3), App.Rotation())
sketch4.addGeometry([
    Part.LineSegment(Vector(20.267806, 73.6, 0), Vector(20.267806, 56.703924, 0)),  # 0
    Part.ArcOfCircle(Part.Circle(Vector(42.5, 35.1, 0), Vector(0, 0, 1), 31), math.radians(90), math.radians(135.821121)),  # 1
    Part.ArcOfCircle(Part.Circle(Vector(42.5, 35.1, 0), Vector(0, 0, 1), 31), math.radians(44.178879), math.radians(90)),  # 2
    Part.LineSegment(Vector(64.732194, 56.703924, 0), Vector(64.732194, 73.6, 0)),  # 3
    Part.LineSegment(Vector(64.732194, 73.6, 0), Vector(20.267806, 73.6, 0)),  # 4
    Part.LineSegment(Vector(7, 38.681073, 0), Vector(7, -1.321938, 0)),  # 5
    Part.LineSegment(Vector(7, -1.321938, 0), Vector(27.063139, 8.216858, 0)),  # 6
    Part.ArcOfCircle(Part.Circle(Vector(42.5, 35.1, 0), Vector(0, 0, 1), 31), math.radians(-146.029611), math.radians(-119.865341)),  # 7
    Part.ArcOfCircle(Part.Circle(Vector(42.5, 35.1, 0), Vector(0, 0, 1), 31), math.radians(167.023951), math.radians(213.970389)),  # 8
    Part.LineSegment(Vector(12.291616, 42.060855, 0), Vector(7, 38.681073, 0)),  # 9
    Part.LineSegment(Vector(78, 38.681073, 0), Vector(72.708384, 42.060855, 0)),  # 10
    Part.ArcOfCircle(Part.Circle(Vector(42.5, 35.1, 0), Vector(0, 0, 1), 31), math.radians(-33.970389), math.radians(12.976049)),  # 11
    Part.ArcOfCircle(Part.Circle(Vector(42.5, 35.1, 0), Vector(0, 0, 1), 31), math.radians(-60.134659), math.radians(-33.970389)),  # 12
    Part.LineSegment(Vector(57.936861, 8.216858, 0), Vector(78, -1.321938, 0)),  # 13
    Part.LineSegment(Vector(78, -1.321938, 0), Vector(78, 38.681073, 0)),  # 14
], False)
sketch4.addConstraint([
    Sketcher.Constraint("Coincident", 0, 2, 1, 2),
    Sketcher.Constraint("Tangent", 1, 1, 2, 2),
    Sketcher.Constraint("Coincident", 2, 1, 3, 1),
    Sketcher.Constraint("Coincident", 3, 2, 4, 1),
    Sketcher.Constraint("Coincident", 4, 2, 0, 1),
    Sketcher.Constraint("Coincident", 5, 2, 6, 1),
    Sketcher.Constraint("Coincident", 6, 2, 7, 2),
    Sketcher.Constraint("Tangent", 7, 1, 8, 2),
    Sketcher.Constraint("Coincident", 8, 1, 9, 1),
    Sketcher.Constraint("Coincident", 9, 2, 5, 1),
    Sketcher.Constraint("Coincident", 10, 2, 11, 2),
    Sketcher.Constraint("Tangent", 11, 1, 12, 2),
    Sketcher.Constraint("Coincident", 12, 1, 13, 1),
    Sketcher.Constraint("Coincident", 13, 2, 14, 1),
    Sketcher.Constraint("Coincident", 14, 2, 10, 1),
    Sketcher.Constraint("Vertical", 0),
    Sketcher.Constraint("Vertical", 3),
    Sketcher.Constraint("Horizontal", 4),
    Sketcher.Constraint("Vertical", 5),
    Sketcher.Constraint("Vertical", 14),
    Sketcher.Constraint("Coincident", 7, 3, 1, 3),
    Sketcher.Constraint("Coincident", 11, 3, 1, 3),
    Sketcher.Constraint("Equal", 1, 2),
    Sketcher.Constraint("Equal", 2, 7),
    Sketcher.Constraint("Equal", 7, 8),
    Sketcher.Constraint("Equal", 8, 11),
    Sketcher.Constraint("Equal", 11, 12),
    Sketcher.Constraint("Horizontal", 0, 2, 2, 1),
    Sketcher.Constraint("Horizontal", 8, 1, 10, 2),
    Sketcher.Constraint("Horizontal", 7, 1, 11, 1),
    Sketcher.Constraint("Horizontal", 6, 2, 12, 1),
    Sketcher.Constraint("Horizontal", 5, 2, 13, 2),
    Sketcher.Constraint("Horizontal", 9, 2, 14, 2),
    Sketcher.Constraint("Vertical", 12, 3, 1, 1),
    Sketcher.Constraint("Equal", 9, 10),
    Sketcher.Constraint("Radius", 1, 31.0),
    Sketcher.Constraint("DistanceX", -1, 1, 5, 2, 7.0),
    Sketcher.Constraint("DistanceX", -1, 1, 13, 2, 78.0),
    Sketcher.Constraint("DistanceY", -1, 1, 1, 3, 35.1),
    Sketcher.Constraint("DistanceY", -1, 1, 3, 2, 73.6),
    Sketcher.Constraint("DistanceX", 4, 2, 4, 1, 44.464388),
    Sketcher.Constraint("DistanceY", 5, 2, 5, 1, 40.003011),
    Sketcher.Constraint("Distance", 6, 22.215269),
    Sketcher.Constraint("DistanceX", -1, 1, 6, 2, 27.063139),
    Sketcher.Constraint("DistanceX", -1, 1, 7, 1, 16.79088),
    Sketcher.Constraint("DistanceX", 8, 1, 0, 2, 7.97619),
])
sketch4.setExpression("Constraints[35]", "Params.sketch4_radius")
pocket3 = body.newObject("PartDesign::Pocket", "Pocket002")
pocket3.Profile = sketch4
pocket3.Type = "ThroughAll"
doc.recompute()

fillet4 = body.newObject("PartDesign::Fillet", "Fillet003")
fillet4.Base = (pocket3, edges_at(pocket3, [
    (20.268, 73.6, 1.5),
    (64.732, 73.6, 1.5),
    (64.732, 56.704, 1.5),
    (20.268, 56.704, 1.5),
    (7, 38.681, 1.5),
    (12.292, 42.061, 1.5),
    (27.063, 8.217, 1.5),
    (7, -1.322, 1.5),
    (72.708, 42.061, 1.5),
    (78, 38.681, 1.5),
    (78, -1.322, 1.5),
    (57.937, 8.217, 1.5),
]))
fillet4.setExpression("Radius", "Params.fillet4_radius")

doc.recompute()
